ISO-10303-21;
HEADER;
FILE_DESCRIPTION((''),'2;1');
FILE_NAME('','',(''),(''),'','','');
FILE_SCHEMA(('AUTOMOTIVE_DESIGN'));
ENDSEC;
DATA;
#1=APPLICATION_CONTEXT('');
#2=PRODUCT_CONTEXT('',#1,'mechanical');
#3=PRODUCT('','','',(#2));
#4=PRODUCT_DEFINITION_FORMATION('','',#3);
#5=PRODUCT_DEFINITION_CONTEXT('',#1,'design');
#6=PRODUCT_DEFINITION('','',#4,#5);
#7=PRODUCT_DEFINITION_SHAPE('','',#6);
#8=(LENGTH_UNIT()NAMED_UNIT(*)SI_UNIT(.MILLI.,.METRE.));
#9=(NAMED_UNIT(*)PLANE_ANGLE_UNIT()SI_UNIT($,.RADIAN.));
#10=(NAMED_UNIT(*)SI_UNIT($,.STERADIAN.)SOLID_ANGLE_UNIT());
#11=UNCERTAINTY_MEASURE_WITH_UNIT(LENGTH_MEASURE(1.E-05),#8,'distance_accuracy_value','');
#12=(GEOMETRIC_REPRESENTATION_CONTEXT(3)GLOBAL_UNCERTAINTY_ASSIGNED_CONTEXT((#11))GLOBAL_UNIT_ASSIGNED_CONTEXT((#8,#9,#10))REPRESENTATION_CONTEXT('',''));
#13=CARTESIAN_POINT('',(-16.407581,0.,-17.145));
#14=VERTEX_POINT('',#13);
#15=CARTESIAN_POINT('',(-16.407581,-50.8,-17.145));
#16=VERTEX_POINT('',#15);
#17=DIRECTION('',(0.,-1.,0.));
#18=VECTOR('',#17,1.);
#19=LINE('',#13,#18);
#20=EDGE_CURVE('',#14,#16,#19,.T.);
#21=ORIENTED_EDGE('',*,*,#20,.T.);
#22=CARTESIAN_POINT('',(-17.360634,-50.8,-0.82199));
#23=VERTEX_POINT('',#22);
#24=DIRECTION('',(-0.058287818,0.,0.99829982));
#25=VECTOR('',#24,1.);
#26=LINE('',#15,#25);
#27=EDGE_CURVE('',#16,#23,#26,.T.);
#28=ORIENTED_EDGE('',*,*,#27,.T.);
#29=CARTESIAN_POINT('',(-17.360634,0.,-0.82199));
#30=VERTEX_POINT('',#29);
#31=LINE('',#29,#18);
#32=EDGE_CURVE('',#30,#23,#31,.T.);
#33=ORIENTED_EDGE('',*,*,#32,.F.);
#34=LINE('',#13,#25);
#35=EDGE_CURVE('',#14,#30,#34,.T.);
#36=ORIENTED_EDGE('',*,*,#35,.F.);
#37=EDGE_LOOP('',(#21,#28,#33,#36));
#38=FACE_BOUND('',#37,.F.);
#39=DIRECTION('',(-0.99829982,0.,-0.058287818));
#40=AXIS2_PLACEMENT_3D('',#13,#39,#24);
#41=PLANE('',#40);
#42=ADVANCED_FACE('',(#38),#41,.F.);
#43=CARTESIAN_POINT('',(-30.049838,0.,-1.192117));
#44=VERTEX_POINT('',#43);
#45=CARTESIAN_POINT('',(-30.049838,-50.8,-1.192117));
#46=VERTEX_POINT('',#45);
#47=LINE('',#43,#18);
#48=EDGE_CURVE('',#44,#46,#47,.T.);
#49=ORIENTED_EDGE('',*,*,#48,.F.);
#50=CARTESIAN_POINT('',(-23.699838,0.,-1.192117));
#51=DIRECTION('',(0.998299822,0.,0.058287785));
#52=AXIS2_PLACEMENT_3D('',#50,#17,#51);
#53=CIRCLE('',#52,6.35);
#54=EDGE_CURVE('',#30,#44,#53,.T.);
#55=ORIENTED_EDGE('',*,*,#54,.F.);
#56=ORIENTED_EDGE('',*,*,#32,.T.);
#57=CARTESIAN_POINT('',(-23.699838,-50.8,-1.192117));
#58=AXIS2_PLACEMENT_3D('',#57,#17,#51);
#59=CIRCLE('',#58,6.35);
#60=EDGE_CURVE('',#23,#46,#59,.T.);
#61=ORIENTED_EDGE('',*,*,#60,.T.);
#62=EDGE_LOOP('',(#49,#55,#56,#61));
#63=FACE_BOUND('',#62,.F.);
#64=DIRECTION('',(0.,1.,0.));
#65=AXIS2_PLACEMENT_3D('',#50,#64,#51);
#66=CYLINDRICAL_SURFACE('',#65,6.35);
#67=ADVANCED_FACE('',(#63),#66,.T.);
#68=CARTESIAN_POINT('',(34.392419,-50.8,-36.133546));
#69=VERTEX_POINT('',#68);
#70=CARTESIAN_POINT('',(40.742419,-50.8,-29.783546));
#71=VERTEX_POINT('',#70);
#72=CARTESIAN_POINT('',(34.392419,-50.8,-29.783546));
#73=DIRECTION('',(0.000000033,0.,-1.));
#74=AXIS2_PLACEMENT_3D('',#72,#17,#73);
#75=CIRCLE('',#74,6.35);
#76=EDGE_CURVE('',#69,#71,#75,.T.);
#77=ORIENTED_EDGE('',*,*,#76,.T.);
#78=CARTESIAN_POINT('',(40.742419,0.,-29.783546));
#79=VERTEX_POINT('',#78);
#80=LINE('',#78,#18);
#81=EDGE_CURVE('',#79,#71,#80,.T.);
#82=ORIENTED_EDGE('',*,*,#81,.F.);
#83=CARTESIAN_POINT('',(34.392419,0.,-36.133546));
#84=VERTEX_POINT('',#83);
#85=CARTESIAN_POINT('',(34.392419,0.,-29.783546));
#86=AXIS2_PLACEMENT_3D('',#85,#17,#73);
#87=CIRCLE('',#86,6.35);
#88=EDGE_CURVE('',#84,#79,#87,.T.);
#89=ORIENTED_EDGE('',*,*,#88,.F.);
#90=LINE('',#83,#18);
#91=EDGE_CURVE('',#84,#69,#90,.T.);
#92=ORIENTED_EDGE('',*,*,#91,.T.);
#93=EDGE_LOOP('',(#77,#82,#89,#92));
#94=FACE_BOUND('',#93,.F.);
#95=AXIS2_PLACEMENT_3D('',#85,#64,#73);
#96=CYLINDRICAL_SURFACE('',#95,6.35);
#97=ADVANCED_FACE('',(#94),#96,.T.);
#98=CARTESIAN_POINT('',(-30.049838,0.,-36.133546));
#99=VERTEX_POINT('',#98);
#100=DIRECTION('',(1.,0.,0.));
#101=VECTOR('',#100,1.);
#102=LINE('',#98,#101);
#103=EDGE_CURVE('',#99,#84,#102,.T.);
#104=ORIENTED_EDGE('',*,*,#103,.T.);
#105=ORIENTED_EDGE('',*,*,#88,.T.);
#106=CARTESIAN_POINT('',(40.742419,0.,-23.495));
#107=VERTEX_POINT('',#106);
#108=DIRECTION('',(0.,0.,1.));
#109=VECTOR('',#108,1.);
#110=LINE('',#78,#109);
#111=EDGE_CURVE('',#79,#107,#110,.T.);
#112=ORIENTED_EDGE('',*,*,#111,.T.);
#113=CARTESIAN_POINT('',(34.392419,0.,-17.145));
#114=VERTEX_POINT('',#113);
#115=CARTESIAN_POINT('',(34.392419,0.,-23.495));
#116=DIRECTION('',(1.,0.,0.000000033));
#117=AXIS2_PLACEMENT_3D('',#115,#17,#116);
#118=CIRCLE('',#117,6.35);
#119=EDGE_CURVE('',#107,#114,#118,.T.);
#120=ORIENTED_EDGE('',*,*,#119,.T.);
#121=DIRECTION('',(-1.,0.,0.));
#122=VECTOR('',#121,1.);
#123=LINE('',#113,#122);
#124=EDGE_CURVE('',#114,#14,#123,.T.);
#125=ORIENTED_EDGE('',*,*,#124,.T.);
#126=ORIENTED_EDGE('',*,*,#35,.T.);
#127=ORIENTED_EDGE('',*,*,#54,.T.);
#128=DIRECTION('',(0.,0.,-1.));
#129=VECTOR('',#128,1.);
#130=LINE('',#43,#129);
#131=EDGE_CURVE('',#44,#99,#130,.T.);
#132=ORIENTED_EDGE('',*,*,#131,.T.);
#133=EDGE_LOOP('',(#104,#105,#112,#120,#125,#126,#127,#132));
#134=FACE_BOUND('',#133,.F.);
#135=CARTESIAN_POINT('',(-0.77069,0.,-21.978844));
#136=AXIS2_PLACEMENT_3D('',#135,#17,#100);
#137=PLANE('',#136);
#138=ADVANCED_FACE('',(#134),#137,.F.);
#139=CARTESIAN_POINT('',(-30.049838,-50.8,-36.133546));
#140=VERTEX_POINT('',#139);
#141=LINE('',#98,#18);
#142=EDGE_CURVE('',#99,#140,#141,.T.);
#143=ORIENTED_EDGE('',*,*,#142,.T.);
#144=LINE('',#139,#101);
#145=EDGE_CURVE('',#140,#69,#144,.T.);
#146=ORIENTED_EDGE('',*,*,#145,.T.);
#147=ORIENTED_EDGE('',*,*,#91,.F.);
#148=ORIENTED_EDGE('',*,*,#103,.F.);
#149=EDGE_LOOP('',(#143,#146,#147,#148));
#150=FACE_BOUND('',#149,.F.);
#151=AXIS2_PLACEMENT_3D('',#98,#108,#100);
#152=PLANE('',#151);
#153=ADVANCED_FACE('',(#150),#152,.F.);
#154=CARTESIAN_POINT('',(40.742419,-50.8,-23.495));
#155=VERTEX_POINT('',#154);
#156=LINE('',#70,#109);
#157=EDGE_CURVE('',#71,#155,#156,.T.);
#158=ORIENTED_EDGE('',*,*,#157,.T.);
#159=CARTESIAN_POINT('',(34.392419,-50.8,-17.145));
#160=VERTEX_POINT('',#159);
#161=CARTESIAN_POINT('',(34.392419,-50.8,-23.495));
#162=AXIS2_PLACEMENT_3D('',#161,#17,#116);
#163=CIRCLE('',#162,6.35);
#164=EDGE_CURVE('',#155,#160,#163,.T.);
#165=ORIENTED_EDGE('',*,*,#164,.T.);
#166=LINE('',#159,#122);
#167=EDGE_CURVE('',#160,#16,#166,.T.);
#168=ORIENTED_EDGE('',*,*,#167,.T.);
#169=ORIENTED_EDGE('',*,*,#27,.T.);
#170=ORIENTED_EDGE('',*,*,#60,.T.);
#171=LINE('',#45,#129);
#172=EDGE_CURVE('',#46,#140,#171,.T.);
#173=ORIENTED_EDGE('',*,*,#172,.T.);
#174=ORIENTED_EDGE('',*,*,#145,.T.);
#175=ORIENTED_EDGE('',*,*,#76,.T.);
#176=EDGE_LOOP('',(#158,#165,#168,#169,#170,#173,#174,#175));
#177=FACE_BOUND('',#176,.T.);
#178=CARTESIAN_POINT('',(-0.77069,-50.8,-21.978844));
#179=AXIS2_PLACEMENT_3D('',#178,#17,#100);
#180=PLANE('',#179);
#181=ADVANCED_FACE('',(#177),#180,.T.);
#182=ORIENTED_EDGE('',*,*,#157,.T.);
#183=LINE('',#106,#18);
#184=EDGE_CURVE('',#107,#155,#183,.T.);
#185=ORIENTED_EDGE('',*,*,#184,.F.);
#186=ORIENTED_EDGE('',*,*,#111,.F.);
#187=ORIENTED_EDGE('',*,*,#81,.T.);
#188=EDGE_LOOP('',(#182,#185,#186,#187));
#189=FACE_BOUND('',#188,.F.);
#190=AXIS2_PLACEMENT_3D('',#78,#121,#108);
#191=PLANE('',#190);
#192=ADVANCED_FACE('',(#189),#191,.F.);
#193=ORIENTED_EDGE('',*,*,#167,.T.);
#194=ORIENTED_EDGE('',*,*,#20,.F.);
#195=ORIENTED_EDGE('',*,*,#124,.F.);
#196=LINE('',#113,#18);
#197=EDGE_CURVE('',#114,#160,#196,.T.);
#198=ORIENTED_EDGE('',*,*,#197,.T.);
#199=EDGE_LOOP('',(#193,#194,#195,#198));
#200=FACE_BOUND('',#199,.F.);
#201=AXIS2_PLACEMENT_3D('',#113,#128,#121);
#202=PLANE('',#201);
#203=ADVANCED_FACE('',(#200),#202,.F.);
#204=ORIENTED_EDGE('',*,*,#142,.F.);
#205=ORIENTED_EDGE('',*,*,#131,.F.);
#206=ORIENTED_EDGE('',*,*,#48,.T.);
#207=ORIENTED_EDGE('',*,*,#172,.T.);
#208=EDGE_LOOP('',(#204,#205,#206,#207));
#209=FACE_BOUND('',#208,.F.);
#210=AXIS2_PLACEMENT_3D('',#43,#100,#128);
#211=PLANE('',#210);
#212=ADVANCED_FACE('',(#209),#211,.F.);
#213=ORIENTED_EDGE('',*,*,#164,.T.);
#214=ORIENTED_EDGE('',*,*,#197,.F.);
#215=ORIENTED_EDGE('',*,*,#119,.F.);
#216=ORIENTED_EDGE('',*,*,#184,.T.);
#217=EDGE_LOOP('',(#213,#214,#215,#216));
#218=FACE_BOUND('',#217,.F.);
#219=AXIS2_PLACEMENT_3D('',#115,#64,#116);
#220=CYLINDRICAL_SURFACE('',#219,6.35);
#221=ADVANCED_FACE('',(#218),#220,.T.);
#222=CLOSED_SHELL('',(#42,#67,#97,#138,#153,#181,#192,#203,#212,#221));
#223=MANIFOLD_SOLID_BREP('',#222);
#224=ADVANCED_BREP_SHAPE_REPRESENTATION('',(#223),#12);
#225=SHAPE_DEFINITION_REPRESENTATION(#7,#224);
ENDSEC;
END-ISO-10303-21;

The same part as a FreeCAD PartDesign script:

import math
import FreeCAD as App
import Part
import Sketcher
Q = App.Units.Quantity

doc = App.newDocument("Part")
body = doc.addObject("PartDesign::Body", "Body")

sketch1 = body.newObject("Sketcher::SketchObject", "Sketch")
sketch1.AttachmentSupport = (doc.getObject("XZ_Plane"), [""])
sketch1.MapMode = "FlatFace"
sketch1.addGeometry([
    Part.ArcOfCircle(Part.Circle(App.Vector(-24, -1, 0), App.Vector(0, 0, 1), 6), math.radians(3), math.radians(180)),
    Part.LineSegment(App.Vector(-30, -1, 0), App.Vector(-30, -36, 0)),
    Part.LineSegment(App.Vector(-30, -36, 0), App.Vector(34, -36, 0)),
    Part.ArcOfCircle(Part.Circle(App.Vector(34, -30, 0), App.Vector(0, 0, 1), 6), math.radians(-90), math.radians(0)),
    Part.LineSegment(App.Vector(41, -30, 0), App.Vector(41, -23, 0)),
    Part.ArcOfCircle(Part.Circle(App.Vector(34, -23, 0), App.Vector(0, 0, 1), 6), math.radians(0), math.radians(90)),
    Part.LineSegment(App.Vector(34, -17, 0), App.Vector(-16, -17, 0)),
    Part.LineSegment(App.Vector(-16, -17, 0), App.Vector(-17, -1, 0)),
], False)
sketch1.addConstraint([
    Sketcher.Constraint("Tangent", 0, 2, 1, 1),
    Sketcher.Constraint("Coincident", 1, 2, 2, 1),
    Sketcher.Constraint("Tangent", 2, 2, 3, 1),
    Sketcher.Constraint("Tangent", 3, 2, 4, 1),
    Sketcher.Constraint("Tangent", 4, 2, 5, 1),
    Sketcher.Constraint("Tangent", 5, 2, 6, 1),
    Sketcher.Constraint("Coincident", 6, 2, 7, 1),
    Sketcher.Constraint("Tangent", 7, 2, 0, 1),
    Sketcher.Constraint("Vertical", 1),
    Sketcher.Constraint("Horizontal", 2),
    Sketcher.Constraint("Vertical", 4),
    Sketcher.Constraint("Horizontal", 6),
    Sketcher.Constraint("Equal", 0, 3),
    Sketcher.Constraint("Equal", 3, 5),
    Sketcher.Constraint("DistanceX", 6, 2, 6, 1, Q("2 in")),
    Sketcher.Constraint("Radius", 0, Q("0.25 in")),
    Sketcher.Constraint("DistanceY", 5, 3, -1, 1, Q("0.925 in")),
    Sketcher.Constraint("DistanceY", 1, 2, 1, 1, 34.941429),
    Sketcher.Constraint("Distance", 7, 16.350809),
    Sketcher.Constraint("DistanceX", 2, 1, 2, 2, 64.442257),
    Sketcher.Constraint("DistanceX", -1, 1, 3, 3, 34.392419),
])
pad1 = body.newObject("PartDesign::Pad", "Pad")
pad1.Profile = sketch1
pad1.Length = Q("2 in")

doc.recompute()
